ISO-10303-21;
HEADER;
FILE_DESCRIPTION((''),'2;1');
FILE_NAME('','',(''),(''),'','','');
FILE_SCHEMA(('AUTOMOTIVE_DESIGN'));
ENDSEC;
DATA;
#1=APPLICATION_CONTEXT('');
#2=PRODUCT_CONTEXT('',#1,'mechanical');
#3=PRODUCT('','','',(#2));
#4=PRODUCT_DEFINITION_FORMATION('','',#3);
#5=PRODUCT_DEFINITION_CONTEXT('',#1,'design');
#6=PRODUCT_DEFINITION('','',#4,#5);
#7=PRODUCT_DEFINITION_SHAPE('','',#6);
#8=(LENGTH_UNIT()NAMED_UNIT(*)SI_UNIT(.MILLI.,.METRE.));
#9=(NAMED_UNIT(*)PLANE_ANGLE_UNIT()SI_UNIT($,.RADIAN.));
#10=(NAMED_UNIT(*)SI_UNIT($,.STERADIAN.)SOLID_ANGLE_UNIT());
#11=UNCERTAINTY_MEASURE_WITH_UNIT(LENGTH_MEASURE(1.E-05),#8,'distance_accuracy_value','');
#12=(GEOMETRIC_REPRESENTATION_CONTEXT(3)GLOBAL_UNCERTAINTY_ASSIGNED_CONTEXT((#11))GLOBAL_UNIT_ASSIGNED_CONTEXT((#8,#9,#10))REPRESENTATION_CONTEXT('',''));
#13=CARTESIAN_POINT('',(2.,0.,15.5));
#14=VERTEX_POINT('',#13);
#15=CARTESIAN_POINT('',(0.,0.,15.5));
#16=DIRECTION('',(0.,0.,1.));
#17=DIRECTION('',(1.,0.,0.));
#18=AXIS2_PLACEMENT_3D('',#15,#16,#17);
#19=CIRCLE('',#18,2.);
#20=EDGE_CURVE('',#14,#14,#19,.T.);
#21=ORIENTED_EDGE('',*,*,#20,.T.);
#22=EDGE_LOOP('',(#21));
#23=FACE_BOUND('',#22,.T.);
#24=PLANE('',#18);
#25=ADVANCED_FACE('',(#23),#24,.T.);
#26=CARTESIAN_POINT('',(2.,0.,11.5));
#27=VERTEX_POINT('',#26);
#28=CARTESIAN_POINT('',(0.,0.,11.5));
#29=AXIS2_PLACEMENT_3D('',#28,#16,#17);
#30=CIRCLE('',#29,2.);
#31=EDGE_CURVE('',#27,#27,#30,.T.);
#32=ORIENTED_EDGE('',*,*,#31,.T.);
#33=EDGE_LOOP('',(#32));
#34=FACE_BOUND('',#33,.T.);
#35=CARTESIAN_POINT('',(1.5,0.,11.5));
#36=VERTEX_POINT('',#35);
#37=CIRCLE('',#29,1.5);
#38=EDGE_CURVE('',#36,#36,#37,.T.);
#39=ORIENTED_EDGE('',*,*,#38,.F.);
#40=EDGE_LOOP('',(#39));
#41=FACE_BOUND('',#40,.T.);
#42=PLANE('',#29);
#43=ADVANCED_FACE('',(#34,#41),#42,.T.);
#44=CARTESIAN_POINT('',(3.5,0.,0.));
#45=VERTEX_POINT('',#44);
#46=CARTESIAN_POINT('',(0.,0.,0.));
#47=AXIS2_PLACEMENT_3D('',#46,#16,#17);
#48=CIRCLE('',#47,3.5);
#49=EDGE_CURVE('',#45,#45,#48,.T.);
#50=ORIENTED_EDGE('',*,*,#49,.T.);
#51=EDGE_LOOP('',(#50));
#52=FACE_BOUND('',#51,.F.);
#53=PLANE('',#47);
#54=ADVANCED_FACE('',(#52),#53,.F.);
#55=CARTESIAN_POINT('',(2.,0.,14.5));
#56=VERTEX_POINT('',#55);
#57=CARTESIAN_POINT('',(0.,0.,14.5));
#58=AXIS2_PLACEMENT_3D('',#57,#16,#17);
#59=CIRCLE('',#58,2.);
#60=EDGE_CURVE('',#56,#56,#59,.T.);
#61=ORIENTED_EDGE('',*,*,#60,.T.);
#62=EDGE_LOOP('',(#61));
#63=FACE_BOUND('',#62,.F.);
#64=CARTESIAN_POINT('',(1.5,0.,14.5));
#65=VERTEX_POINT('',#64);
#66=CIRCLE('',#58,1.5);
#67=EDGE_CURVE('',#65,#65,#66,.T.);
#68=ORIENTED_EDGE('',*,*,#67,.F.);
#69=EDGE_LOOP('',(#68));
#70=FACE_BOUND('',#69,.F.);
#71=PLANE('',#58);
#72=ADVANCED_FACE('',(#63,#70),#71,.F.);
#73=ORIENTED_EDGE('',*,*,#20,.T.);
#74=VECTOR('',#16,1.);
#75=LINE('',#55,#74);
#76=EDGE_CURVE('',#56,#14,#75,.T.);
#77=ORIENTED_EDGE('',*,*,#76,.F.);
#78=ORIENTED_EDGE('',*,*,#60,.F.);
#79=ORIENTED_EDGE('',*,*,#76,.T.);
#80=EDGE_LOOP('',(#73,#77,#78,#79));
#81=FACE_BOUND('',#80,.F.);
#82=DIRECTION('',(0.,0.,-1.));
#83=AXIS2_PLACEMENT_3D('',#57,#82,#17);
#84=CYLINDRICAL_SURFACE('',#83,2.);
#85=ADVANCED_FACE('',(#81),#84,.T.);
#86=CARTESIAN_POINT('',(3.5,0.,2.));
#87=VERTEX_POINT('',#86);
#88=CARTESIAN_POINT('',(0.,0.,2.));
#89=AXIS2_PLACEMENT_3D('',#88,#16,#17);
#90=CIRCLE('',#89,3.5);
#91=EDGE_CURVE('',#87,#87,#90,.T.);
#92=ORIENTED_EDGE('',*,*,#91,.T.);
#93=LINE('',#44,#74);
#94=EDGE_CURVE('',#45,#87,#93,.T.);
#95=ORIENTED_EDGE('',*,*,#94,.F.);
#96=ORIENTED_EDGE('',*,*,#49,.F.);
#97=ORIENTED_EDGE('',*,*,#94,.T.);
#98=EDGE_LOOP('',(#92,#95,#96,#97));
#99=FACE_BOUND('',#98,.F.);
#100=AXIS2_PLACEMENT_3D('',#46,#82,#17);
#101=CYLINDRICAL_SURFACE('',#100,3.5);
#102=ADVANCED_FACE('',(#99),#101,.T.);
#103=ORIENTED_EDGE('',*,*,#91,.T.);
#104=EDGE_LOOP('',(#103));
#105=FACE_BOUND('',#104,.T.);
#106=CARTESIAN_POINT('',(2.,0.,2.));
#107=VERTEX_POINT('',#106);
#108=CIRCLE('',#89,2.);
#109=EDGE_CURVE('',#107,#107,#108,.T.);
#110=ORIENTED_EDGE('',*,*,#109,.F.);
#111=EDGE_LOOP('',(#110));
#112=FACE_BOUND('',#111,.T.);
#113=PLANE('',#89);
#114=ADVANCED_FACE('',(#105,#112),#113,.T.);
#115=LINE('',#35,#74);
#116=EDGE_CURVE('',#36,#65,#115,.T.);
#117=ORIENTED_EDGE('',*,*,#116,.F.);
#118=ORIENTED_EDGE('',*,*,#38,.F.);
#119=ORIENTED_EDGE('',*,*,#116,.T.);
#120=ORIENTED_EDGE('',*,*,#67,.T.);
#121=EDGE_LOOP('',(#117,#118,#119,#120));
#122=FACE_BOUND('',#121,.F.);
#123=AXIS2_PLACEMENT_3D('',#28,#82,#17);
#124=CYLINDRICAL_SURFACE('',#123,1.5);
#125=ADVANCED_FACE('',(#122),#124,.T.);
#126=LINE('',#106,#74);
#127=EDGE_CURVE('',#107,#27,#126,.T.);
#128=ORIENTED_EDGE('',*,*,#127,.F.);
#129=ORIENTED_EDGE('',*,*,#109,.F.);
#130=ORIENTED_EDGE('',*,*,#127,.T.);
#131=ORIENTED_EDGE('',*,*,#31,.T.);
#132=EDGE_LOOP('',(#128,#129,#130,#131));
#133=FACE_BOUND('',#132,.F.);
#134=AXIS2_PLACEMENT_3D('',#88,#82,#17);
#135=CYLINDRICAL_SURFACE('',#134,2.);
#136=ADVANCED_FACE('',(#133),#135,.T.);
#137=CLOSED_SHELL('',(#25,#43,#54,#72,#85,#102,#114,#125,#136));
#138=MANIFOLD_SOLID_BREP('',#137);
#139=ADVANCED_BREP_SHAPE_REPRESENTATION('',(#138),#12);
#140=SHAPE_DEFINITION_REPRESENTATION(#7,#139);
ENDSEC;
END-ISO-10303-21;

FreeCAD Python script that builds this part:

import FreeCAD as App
import Part
import Sketcher
from FreeCAD import Vector

doc = App.newDocument("Part")
body = doc.addObject("PartDesign::Body", "Body")

sketch1 = body.newObject("Sketcher::SketchObject", "Sketch")
sketch1.AttachmentSupport = (doc.getObject("XY_Plane"), [""])
sketch1.MapMode = "FlatFace"
sketch1.addGeometry(Part.Circle(Vector(0, 0, 0), Vector(0, 0, 1), 3.5), False)
sketch1.addConstraint([
    Sketcher.Constraint("Coincident", 0, 3, -1, 1),
    Sketcher.Constraint("Diameter", 0, 7.0),
])
pad1 = body.newObject("PartDesign::Pad", "Pad")
pad1.Profile = sketch1
pad1.Length = 2

sketch2 = body.newObject("Sketcher::SketchObject", "Sketch001")
sketch2.AttachmentSupport = (doc.getObject("XY_Plane"), [""])
sketch2.MapMode = "FlatFace"
sketch2.AttachmentOffset = App.Placement(Vector(0, 0, 2), App.Rotation())
sketch2.addGeometry(Part.Circle(Vector(0, 0, 0), Vector(0, 0, 1), 2), False)
sketch2.addConstraint([
    Sketcher.Constraint("Coincident", 0, 3, -1, 1),
    Sketcher.Constraint("Diameter", 0, 4.0),
])
pad2 = body.newObject("PartDesign::Pad", "Pad001")
pad2.Profile = sketch2
pad2.Length = 9.5

sketch3 = body.newObject("Sketcher::SketchObject", "Sketch002")
sketch3.AttachmentSupport = (doc.getObject("XY_Plane"), [""])
sketch3.MapMode = "FlatFace"
sketch3.AttachmentOffset = App.Placement(Vector(0, 0, 11.5), App.Rotation())
sketch3.addGeometry(Part.Circle(Vector(0, 0, 0), Vector(0, 0, 1), 1.5), False)
sketch3.addConstraint([
    Sketcher.Constraint("Coincident", 0, 3, -1, 1),
    Sketcher.Constraint("Diameter", 0, 3.0),
])
pad3 = body.newObject("PartDesign::Pad", "Pad002")
pad3.Profile = sketch3
pad3.Length = 3

sketch4 = body.newObject("Sketcher::SketchObject", "Sketch003")
sketch4.AttachmentSupport = (doc.getObject("XY_Plane"), [""])
sketch4.MapMode = "FlatFace"
sketch4.AttachmentOffset = App.Placement(Vector(0, 0, 14.5), App.Rotation())
sketch4.addGeometry(Part.Circle(Vector(0, 0, 0), Vector(0, 0, 1), 2), False)
sketch4.addConstraint([
    Sketcher.Constraint("Coincident", 0, 3, -1, 1),
    Sketcher.Constraint("Diameter", 0, 4.0),
])
pad4 = body.newObject("PartDesign::Pad", "Pad003")
pad4.Profile = sketch4
pad4.Length = 1

doc.recompute()
